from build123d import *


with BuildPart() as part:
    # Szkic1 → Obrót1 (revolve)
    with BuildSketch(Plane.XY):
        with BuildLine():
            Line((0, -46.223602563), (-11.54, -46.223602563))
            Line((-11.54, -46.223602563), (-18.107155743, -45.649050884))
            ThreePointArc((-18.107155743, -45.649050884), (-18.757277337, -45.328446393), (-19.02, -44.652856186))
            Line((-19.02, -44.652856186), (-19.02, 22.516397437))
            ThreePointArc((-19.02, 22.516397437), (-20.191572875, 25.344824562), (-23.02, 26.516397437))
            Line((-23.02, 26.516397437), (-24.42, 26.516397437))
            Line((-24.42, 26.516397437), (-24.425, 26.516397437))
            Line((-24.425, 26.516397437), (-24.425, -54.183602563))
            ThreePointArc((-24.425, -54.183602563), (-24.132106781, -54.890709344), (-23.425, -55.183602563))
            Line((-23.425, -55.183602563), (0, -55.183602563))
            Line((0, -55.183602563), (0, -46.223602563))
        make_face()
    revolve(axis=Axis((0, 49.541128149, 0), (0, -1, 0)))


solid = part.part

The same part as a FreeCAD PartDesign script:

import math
import FreeCAD as App
import Part
import Sketcher
from FreeCAD import Vector
Q = App.Units.Quantity

doc = App.newDocument("Part")
body = doc.addObject("PartDesign::Body", "Body")

sketch1 = body.newObject("Sketcher::SketchObject", "Sketch")
sketch1.AttachmentSupport = (doc.getObject("XY_Plane"), [""])
sketch1.MapMode = "FlatFace"
sketch1.addGeometry([
    Part.LineSegment(Vector(0, -46.2, 0), Vector(-11.5, -46.2, 0)),
    Part.LineSegment(Vector(-11.5, -46.2, 0), Vector(-18.1, -45.6, 0)),
    Part.ArcOfCircle(Part.Circle(Vector(-18, -44.7, 0), Vector(0, 0, 1), 1), math.radians(-180), math.radians(-95)),
    Part.LineSegment(Vector(-19, -44.7, 0), Vector(-19, 22.5, 0)),
    Part.ArcOfCircle(Part.Circle(Vector(-23, 22.5, 0), Vector(0, 0, 1), 4), math.radians(0), math.radians(90)),
    Part.LineSegment(Vector(-23, 26.5, 0), Vector(-24.4, 26.5, 0)),
    Part.LineSegment(Vector(-24.4, 26.5, 0), Vector(-24.4, -54.2, 0)),
    Part.ArcOfCircle(Part.Circle(Vector(-23.4, -54.2, 0), Vector(0, 0, 1), 1), math.radians(-180), math.radians(-90)),
    Part.LineSegment(Vector(-23.4, -55.2, 0), Vector(0, -55.2, 0)),
    Part.LineSegment(Vector(0, -55.2, 0), Vector(0, -46.2, 0)),
], False)
sketch1.addConstraint([
    Sketcher.Constraint("Coincident", 0, 2, 1, 1),
    Sketcher.Constraint("Tangent", 1, 2, 2, 2),
    Sketcher.Constraint("Tangent", 2, 1, 3, 1),
    Sketcher.Constraint("Tangent", 3, 2, 4, 1),
    Sketcher.Constraint("Tangent", 4, 2, 5, 1),
    Sketcher.Constraint("Coincident", 5, 2, 6, 1),
    Sketcher.Constraint("Tangent", 6, 2, 7, 1),
    Sketcher.Constraint("Tangent", 7, 2, 8, 1),
    Sketcher.Constraint("Coincident", 8, 2, 9, 1),
    Sketcher.Constraint("Coincident", 9, 2, 0, 1),
    Sketcher.Constraint("Horizontal", 0),
    Sketcher.Constraint("Vertical", 3),
    Sketcher.Constraint("Horizontal", 5),
    Sketcher.Constraint("Vertical", 6),
    Sketcher.Constraint("Horizontal", 8),
    Sketcher.Constraint("Vertical", 9),
    Sketcher.Constraint("Equal", 2, 7),
    Sketcher.Constraint("PointOnObject", 8, 2, -2),
    Sketcher.Constraint("Radius", 2, 1.0),
    Sketcher.Constraint("Radius", 4, 4.0),
    Sketcher.Constraint("Angle", 1, Q("175 deg")),
    Sketcher.Constraint("DistanceY", 6, 2, 6, 1, 80.7),
    Sketcher.Constraint("DistanceX", 0, 2, 0, 1, 11.54),
    Sketcher.Constraint("DistanceY", 9, 1, 9, 2, 8.96),
    Sketcher.Constraint("DistanceX", 5, 2, 5, 1, 1.405),
    Sketcher.Constraint("DistanceX", 8, 1, 8, 2, 23.425),
    Sketcher.Constraint("DistanceY", 1, 2, -1, 1, 45.649051),
])
revolution = body.newObject("PartDesign::Revolution", "Revolution")
revolution.Profile = sketch1
revolution.ReferenceAxis = (sketch1, ["V_Axis"])
revolution.Angle = 360

doc.recompute()
